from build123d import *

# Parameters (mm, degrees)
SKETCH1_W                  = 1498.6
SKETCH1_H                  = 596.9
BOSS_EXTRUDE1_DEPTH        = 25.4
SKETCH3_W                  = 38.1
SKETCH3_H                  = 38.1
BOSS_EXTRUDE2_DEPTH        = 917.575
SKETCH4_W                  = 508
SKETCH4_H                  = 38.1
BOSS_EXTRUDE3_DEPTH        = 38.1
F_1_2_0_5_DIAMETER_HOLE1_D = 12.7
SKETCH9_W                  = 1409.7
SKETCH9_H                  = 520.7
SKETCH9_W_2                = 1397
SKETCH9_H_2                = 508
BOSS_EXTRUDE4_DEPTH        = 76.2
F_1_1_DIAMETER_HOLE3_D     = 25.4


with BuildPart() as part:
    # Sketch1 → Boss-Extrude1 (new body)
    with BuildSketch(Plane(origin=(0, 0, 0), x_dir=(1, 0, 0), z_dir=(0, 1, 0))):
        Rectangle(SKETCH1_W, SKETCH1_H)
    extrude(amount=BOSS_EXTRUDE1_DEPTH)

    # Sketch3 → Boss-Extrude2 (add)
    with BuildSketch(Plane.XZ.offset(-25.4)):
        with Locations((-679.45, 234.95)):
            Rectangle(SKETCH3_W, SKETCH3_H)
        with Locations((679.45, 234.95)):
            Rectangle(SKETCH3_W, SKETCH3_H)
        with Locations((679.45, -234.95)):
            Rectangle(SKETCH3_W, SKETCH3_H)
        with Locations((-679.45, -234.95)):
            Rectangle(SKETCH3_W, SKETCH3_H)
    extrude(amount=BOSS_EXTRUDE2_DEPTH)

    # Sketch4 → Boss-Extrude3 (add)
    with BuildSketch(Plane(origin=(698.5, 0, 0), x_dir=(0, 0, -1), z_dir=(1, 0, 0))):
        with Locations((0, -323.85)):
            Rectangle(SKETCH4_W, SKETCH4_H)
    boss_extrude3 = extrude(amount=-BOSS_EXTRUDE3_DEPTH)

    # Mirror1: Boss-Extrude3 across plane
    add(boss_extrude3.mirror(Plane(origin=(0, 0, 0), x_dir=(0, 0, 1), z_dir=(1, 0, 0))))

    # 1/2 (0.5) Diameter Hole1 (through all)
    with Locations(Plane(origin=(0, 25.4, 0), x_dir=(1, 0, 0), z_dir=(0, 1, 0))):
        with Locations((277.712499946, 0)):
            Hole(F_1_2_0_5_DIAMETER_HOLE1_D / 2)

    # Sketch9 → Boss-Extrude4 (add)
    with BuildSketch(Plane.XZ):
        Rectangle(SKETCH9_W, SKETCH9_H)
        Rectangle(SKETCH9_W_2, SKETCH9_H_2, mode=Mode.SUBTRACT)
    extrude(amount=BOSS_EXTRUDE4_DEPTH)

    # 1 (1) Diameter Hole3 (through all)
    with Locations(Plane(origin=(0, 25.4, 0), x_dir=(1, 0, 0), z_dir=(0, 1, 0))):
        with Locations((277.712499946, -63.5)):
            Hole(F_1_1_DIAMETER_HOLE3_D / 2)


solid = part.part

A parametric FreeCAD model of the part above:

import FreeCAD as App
import Part
import Sketcher

V = App.Vector
Q = App.Units.Quantity


def add_polygon(sketch, points):
    """Adds a closed chain of lines whose ends are joined by coincident constraints."""
    first, n = sketch.GeometryCount, len(points)
    for a, b in zip(points, points[1:] + points[:1]):
        sketch.addGeometry(Part.LineSegment(App.Vector(*a, 0), App.Vector(*b, 0)), False)
    for i in range(n):
        sketch.addConstraint(Sketcher.Constraint("Coincident", first + i, 2, first + (i + 1) % n, 1))

doc = App.newDocument("Part")
body = doc.addObject("PartDesign::Body", "Body")

sketch1 = body.newObject("Sketcher::SketchObject", "Sketch")
sketch1.AttachmentSupport = (doc.getObject("XZ_Plane"), [""])
sketch1.MapMode = "FlatFace"
add_polygon(sketch1, [(-749.3, -298.45), (-749.3, 298.45), (749.3, 298.45), (749.3, -298.45)])
sketch1.addConstraint(Sketcher.Constraint("Vertical", 0))
sketch1.addConstraint(Sketcher.Constraint("Horizontal", 1))
sketch1.addConstraint(Sketcher.Constraint("Vertical", 2))
sketch1.addConstraint(Sketcher.Constraint("Horizontal", 3))
sketch1.addConstraint(Sketcher.Constraint("Symmetric", 0, 2, 2, 2, -1, 1))
sketch1.addConstraint(Sketcher.Constraint("DistanceX", 1, 1, 1, 2, Q("59 in")))
sketch1.addConstraint(Sketcher.Constraint("DistanceY", 0, 1, 0, 2, Q("23.5 in")))
pad1 = body.newObject("PartDesign::Pad", "Pad")
pad1.Profile = sketch1
pad1.Length = Q("1 in")
pad1.Reversed = True

sketch2 = body.newObject("Sketcher::SketchObject", "Sketch001")
sketch2.AttachmentSupport = (doc.getObject("XZ_Plane"), [""])
sketch2.MapMode = "FlatFace"
sketch2.AttachmentOffset = App.Placement(V(0, 0, -1 * 25.4), App.Rotation())
add_polygon(sketch2, [(-698.5, 254), (-698.5, 215.9), (-660.4, 215.9), (-660.4, 254)])
add_polygon(sketch2, [(660.4, 254), (660.4, 215.9), (698.5, 215.9), (698.5, 254)])
add_polygon(sketch2, [(660.4, -215.9), (660.4, -254), (698.5, -254), (698.5, -215.9)])
add_polygon(sketch2, [(-698.5, -215.9), (-698.5, -254), (-660.4, -254), (-660.4, -215.9)])
sketch2.addConstraint(Sketcher.Constraint("Vertical", 0))
sketch2.addConstraint(Sketcher.Constraint("Horizontal", 1))
sketch2.addConstraint(Sketcher.Constraint("Vertical", 2))
sketch2.addConstraint(Sketcher.Constraint("Horizontal", 3))
sketch2.addConstraint(Sketcher.Constraint("Vertical", 4))
sketch2.addConstraint(Sketcher.Constraint("Horizontal", 5))
sketch2.addConstraint(Sketcher.Constraint("Vertical", 6))
sketch2.addConstraint(Sketcher.Constraint("Horizontal", 7))
sketch2.addConstraint(Sketcher.Constraint("Vertical", 8))
sketch2.addConstraint(Sketcher.Constraint("Horizontal", 9))
sketch2.addConstraint(Sketcher.Constraint("Vertical", 10))
sketch2.addConstraint(Sketcher.Constraint("Horizontal", 11))
sketch2.addConstraint(Sketcher.Constraint("Vertical", 12))
sketch2.addConstraint(Sketcher.Constraint("Horizontal", 13))
sketch2.addConstraint(Sketcher.Constraint("Vertical", 14))
sketch2.addConstraint(Sketcher.Constraint("Horizontal", 15))
sketch2.addConstraint(Sketcher.Constraint("Symmetric", 2, 2, 8, 2, -1, 1))
sketch2.addConstraint(Sketcher.Constraint("Symmetric", 0, 2, 10, 2, -1, 1))
sketch2.addConstraint(Sketcher.Constraint("Symmetric", 6, 2, 12, 2, -1, 1))
sketch2.addConstraint(Sketcher.Constraint("Symmetric", 4, 2, 14, 2, -1, 1))
sketch2.addConstraint(Sketcher.Constraint("Symmetric", 1, 2, 4, 2, -2))
sketch2.addConstraint(Sketcher.Constraint("Symmetric", 3, 2, 6, 2, -2))
sketch2.addConstraint(Sketcher.Constraint("Equal", 15, 0))
sketch2.addConstraint(Sketcher.Constraint("DistanceX", 1, 1, 1, 2, Q("1.5 in")))
sketch2.addConstraint(Sketcher.Constraint("DistanceX", 1, 2, -1, 1, Q("26 in")))
sketch2.addConstraint(Sketcher.Constraint("DistanceY", -1, 1, 2, 2, Q("10 in")))
pad2 = body.newObject("PartDesign::Pad", "Pad001")
pad2.Profile = sketch2
pad2.Length = Q("36.125 in")

sketch3 = body.newObject("Sketcher::SketchObject", "Sketch002")
sketch3.AttachmentSupport = (doc.getObject("YZ_Plane"), [""])
sketch3.MapMode = "FlatFace"
sketch3.AttachmentOffset = App.Placement(V(0, 0, 27.5 * 25.4), App.Rotation())
add_polygon(sketch3, [(-304.8, 254), (-342.9, 254), (-342.9, -254), (-304.8, -254)])
sketch3.addConstraint(Sketcher.Constraint("Horizontal", 0))
sketch3.addConstraint(Sketcher.Constraint("Vertical", 1))
sketch3.addConstraint(Sketcher.Constraint("Horizontal", 2))
sketch3.addConstraint(Sketcher.Constraint("Vertical", 3))
sketch3.addConstraint(Sketcher.Constraint("DistanceY", 1, 2, 1, 1, Q("20 in")))
sketch3.addConstraint(Sketcher.Constraint("DistanceX", 0, 2, 0, 1, Q("1.5 in")))
sketch3.addConstraint(Sketcher.Constraint("DistanceY", -1, 1, 0, 2, Q("10 in")))
sketch3.addConstraint(Sketcher.Constraint("DistanceX", 2, 2, -1, 1, Q("12 in")))
pad3 = body.newObject("PartDesign::Pad", "Pad002")
pad3.Profile = sketch3
pad3.Length = Q("1.5 in")
pad3.Reversed = True
doc.recompute()

mirrored = body.newObject("PartDesign::Mirrored", "Mirrored")
mirrored.Originals = [pad3]
mirrored.MirrorPlane = (doc.getObject("YZ_Plane"), [""])
body.Tip = mirrored

sketch4 = body.newObject("Sketcher::SketchObject", "Sketch003")
sketch4.AttachmentSupport = (doc.getObject("XZ_Plane"), [""])
sketch4.MapMode = "FlatFace"
sketch4.AttachmentOffset = App.Placement(V(0, 0, -1 * 25.4), App.Rotation())
sketch4.addGeometry(Part.Circle(V(277.7125, 0, 0), V(0, 0, 1), 6.35), False)
sketch4.addConstraint(Sketcher.Constraint("PointOnObject", 0, 3, -1))
sketch4.addConstraint(Sketcher.Constraint("Diameter", 0, Q("0.5 in")))
sketch4.addConstraint(Sketcher.Constraint("DistanceX", -1, 1, 0, 3, 277.7125))
doc.recompute()
hole = body.newObject("PartDesign::Hole", "Hole")
hole.Profile = sketch4
hole.ThreadType = "None"
hole.Diameter = Q("0.5 in")
hole.DepthType = "ThroughAll"
hole.Reversed = True

sketch5 = body.newObject("Sketcher::SketchObject", "Sketch004")
sketch5.AttachmentSupport = (doc.getObject("XZ_Plane"), [""])
sketch5.MapMode = "FlatFace"
add_polygon(sketch5, [(-704.85, 260.35), (-704.85, -260.35), (704.85, -260.35), (704.85, 260.35)])
add_polygon(sketch5, [(698.5, -254), (-698.5, -254), (-698.5, 254), (698.5, 254)])
sketch5.addConstraint(Sketcher.Constraint("Vertical", 0))
sketch5.addConstraint(Sketcher.Constraint("Horizontal", 1))
sketch5.addConstraint(Sketcher.Constraint("Vertical", 2))
sketch5.addConstraint(Sketcher.Constraint("Horizontal", 3))
sketch5.addConstraint(Sketcher.Constraint("Horizontal", 4))
sketch5.addConstraint(Sketcher.Constraint("Vertical", 5))
sketch5.addConstraint(Sketcher.Constraint("Horizontal", 6))
sketch5.addConstraint(Sketcher.Constraint("Vertical", 7))
sketch5.addConstraint(Sketcher.Constraint("Symmetric", 0, 2, 2, 2, -1, 1))
sketch5.addConstraint(Sketcher.Constraint("Symmetric", 4, 2, 6, 2, -1, 1))
sketch5.addConstraint(Sketcher.Constraint("DistanceX", 4, 2, 4, 1, Q("55 in")))
sketch5.addConstraint(Sketcher.Constraint("DistanceY", 5, 1, 5, 2, Q("20 in")))
sketch5.addConstraint(Sketcher.Constraint("DistanceX", 1, 1, 1, 2, Q("55.5 in")))
sketch5.addConstraint(Sketcher.Constraint("DistanceY", 0, 2, 0, 1, Q("20.5 in")))
pad4 = body.newObject("PartDesign::Pad", "Pad003")
pad4.Profile = sketch5
pad4.Length = Q("3 in")

sketch6 = body.newObject("Sketcher::SketchObject", "Sketch005")
sketch6.AttachmentSupport = (doc.getObject("XZ_Plane"), [""])
sketch6.MapMode = "FlatFace"
sketch6.AttachmentOffset = App.Placement(V(0, 0, -1 * 25.4), App.Rotation())
sketch6.addGeometry(Part.Circle(V(277.7125, 63.5, 0), V(0, 0, 1), 12.7), False)
sketch6.addConstraint(Sketcher.Constraint("Diameter", 0, Q("1 in")))
sketch6.addConstraint(Sketcher.Constraint("DistanceY", -1, 1, 0, 3, Q("2.5 in")))
sketch6.addConstraint(Sketcher.Constraint("DistanceX", -1, 1, 0, 3, 277.7125))
doc.recompute()
hole2 = body.newObject("PartDesign::Hole", "Hole001")
hole2.Profile = sketch6
hole2.ThreadType = "None"
hole2.Diameter = Q("1 in")
hole2.DepthType = "ThroughAll"
hole2.Reversed = True

doc.recompute()
